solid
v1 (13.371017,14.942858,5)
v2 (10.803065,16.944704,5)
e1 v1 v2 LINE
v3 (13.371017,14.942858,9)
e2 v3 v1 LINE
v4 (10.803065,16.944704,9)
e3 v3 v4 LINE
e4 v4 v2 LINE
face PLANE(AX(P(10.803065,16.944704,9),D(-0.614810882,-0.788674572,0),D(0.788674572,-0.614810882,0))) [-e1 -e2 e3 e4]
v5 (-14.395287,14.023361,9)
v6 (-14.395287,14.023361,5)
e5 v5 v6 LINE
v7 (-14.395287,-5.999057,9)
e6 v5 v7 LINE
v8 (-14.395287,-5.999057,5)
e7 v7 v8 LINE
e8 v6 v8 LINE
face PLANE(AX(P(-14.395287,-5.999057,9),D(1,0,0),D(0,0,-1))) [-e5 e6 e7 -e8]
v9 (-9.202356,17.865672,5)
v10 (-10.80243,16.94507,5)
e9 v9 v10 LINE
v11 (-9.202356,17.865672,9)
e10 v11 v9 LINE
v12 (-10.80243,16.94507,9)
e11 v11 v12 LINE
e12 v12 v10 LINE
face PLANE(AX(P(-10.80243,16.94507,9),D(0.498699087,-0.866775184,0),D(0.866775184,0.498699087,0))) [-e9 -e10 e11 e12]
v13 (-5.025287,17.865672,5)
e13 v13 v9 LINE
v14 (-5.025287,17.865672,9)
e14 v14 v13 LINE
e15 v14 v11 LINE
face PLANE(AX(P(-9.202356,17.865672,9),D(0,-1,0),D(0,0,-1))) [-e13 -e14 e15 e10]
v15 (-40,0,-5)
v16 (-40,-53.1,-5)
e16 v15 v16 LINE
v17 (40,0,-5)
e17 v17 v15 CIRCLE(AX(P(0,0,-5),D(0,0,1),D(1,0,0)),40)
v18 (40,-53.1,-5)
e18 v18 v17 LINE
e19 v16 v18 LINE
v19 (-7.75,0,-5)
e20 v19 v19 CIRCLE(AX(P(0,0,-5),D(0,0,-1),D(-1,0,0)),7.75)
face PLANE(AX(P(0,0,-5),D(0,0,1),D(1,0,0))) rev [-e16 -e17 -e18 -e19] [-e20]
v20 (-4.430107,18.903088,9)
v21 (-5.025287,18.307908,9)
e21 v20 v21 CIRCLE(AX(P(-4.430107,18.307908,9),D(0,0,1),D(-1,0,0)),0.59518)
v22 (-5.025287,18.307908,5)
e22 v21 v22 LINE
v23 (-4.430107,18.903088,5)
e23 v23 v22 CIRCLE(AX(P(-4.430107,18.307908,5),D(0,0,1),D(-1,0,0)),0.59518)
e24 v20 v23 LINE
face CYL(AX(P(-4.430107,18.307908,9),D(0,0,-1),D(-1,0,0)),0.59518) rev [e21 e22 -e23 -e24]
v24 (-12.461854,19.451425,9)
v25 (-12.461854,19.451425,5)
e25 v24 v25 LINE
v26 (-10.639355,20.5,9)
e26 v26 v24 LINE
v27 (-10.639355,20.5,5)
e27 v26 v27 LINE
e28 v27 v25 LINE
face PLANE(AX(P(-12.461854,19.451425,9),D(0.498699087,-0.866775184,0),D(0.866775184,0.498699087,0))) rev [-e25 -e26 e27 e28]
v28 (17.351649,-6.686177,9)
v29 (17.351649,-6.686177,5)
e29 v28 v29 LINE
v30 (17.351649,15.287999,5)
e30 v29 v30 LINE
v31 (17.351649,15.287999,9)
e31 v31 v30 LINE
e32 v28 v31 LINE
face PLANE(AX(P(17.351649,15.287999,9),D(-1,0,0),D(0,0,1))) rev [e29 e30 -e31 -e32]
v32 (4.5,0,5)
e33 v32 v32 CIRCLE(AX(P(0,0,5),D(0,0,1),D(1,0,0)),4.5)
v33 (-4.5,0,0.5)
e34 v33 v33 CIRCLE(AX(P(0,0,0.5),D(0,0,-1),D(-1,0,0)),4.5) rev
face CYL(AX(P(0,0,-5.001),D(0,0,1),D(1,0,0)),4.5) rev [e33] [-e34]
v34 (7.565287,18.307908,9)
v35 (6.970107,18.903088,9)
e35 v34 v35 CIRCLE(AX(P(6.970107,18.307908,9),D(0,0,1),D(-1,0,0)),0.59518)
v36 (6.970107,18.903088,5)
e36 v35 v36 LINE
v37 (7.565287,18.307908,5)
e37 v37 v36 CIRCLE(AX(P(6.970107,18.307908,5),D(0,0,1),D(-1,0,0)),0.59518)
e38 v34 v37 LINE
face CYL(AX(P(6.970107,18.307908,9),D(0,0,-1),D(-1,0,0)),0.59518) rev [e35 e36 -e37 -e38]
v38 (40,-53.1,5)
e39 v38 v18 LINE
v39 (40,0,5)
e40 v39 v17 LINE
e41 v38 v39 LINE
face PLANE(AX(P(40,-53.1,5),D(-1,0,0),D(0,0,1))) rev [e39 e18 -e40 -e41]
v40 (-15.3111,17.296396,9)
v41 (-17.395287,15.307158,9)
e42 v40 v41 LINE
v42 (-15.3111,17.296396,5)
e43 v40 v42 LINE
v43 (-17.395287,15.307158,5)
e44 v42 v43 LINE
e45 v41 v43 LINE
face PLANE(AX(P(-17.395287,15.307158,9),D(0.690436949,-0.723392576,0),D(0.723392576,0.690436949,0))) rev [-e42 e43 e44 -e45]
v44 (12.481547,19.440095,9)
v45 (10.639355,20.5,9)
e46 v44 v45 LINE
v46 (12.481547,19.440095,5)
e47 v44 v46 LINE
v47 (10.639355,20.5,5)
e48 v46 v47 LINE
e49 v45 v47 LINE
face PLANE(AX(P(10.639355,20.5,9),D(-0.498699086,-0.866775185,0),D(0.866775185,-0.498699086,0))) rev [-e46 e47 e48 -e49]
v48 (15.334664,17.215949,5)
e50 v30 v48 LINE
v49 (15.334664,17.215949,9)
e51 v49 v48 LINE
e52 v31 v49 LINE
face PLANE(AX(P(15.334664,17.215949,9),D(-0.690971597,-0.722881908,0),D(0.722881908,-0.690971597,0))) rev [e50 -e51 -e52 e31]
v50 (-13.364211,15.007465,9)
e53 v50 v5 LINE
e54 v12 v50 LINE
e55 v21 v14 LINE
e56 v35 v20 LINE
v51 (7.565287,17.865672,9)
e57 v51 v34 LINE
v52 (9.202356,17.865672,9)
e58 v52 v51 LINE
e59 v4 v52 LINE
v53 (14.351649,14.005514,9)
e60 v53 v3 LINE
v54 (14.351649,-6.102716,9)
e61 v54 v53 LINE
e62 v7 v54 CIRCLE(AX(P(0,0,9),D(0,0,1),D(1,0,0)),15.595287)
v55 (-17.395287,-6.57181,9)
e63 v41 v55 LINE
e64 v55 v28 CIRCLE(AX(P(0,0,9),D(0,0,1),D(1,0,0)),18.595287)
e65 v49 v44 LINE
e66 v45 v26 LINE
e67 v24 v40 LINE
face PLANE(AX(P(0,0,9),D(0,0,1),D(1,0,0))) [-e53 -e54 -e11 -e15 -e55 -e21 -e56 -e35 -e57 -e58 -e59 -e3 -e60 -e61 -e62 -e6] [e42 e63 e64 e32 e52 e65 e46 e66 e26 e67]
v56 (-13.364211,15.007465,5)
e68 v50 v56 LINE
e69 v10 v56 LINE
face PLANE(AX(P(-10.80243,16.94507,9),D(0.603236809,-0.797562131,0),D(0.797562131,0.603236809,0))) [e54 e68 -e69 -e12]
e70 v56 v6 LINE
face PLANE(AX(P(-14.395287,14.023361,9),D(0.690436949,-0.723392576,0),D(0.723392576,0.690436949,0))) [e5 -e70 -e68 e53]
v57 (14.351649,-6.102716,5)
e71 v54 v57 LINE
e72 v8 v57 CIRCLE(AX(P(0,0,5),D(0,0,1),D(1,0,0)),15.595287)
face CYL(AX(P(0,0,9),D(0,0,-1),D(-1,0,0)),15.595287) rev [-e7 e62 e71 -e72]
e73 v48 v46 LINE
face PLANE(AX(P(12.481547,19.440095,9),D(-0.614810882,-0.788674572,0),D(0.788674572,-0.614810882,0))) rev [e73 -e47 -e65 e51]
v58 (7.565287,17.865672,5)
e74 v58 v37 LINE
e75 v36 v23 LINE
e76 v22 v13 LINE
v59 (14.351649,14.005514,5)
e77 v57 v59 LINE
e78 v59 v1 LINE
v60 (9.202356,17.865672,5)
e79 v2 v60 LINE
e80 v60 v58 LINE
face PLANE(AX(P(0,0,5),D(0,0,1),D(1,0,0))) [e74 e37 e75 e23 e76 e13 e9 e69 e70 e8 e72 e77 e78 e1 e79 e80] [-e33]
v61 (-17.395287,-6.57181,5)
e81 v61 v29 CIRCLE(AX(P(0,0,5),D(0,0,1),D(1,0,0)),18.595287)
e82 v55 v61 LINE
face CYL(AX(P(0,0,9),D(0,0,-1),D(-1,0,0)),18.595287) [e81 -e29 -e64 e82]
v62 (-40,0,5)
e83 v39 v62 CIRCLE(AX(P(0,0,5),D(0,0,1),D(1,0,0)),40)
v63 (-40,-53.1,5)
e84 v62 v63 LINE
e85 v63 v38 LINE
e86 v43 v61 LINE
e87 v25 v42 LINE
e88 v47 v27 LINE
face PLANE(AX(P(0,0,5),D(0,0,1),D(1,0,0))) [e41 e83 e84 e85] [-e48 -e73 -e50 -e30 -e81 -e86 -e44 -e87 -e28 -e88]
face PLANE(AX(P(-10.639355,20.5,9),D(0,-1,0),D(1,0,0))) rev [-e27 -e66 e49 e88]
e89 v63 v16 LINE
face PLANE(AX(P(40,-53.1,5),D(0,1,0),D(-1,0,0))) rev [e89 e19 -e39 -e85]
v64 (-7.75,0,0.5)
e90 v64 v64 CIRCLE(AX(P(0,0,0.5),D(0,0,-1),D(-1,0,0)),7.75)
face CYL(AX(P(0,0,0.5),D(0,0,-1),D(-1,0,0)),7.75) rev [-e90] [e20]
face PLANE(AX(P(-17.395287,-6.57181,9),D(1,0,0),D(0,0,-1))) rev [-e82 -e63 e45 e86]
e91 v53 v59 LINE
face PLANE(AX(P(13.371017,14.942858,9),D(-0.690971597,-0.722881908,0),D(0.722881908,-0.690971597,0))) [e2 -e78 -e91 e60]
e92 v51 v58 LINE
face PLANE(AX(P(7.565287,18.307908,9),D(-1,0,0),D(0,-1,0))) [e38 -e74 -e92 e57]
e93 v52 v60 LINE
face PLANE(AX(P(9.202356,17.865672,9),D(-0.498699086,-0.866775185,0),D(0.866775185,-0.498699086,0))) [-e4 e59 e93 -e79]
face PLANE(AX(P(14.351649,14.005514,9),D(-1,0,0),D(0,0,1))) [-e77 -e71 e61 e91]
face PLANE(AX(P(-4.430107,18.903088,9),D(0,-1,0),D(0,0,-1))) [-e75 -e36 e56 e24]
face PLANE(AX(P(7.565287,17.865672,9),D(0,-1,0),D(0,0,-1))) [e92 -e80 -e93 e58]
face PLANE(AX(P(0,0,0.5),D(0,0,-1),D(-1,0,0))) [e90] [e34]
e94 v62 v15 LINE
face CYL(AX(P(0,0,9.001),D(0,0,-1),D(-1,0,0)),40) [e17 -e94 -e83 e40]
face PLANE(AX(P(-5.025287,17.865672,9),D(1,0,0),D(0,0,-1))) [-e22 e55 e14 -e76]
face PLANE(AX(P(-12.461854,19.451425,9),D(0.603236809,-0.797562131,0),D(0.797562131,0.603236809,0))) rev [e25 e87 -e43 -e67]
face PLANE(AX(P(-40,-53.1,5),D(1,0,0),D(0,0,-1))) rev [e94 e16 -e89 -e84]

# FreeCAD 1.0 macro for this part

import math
import FreeCAD as App
import Part
import Sketcher
from FreeCAD import Vector
Q = App.Units.Quantity


def add_polygon(sketch, points):
    """Adds a closed chain of lines whose ends are joined by coincident constraints."""
    first, n = sketch.GeometryCount, len(points)
    for a, b in zip(points, points[1:] + points[:1]):
        sketch.addGeometry(Part.LineSegment(App.Vector(*a, 0), App.Vector(*b, 0)), False)
    for i in range(n):
        sketch.addConstraint(Sketcher.Constraint("Coincident", first + i, 2, first + (i + 1) % n, 1))

doc = App.newDocument("Part")
body = doc.addObject("PartDesign::Body", "Body")

# Sketch on XY plane
sketch1 = body.newObject("Sketcher::SketchObject", "Sketch")
sketch1.AttachmentSupport = (doc.getObject("XY_Plane"), [""])
sketch1.MapMode = "FlatFace"
add_polygon(sketch1, [(-40, 53), (-40, -53), (40, -53), (40, 53)])  # lines 0-3
sketch1.addConstraint([
    Sketcher.Constraint("Vertical", 0),
    Sketcher.Constraint("Horizontal", 1),
    Sketcher.Constraint("Vertical", 2),
    Sketcher.Constraint("Horizontal", 3),
    Sketcher.Constraint("Symmetric", 0, 2, 2, 2, -1, 1),
    Sketcher.Constraint("DistanceX", 1, 1, 1, 2, Q("80 mm")),
    Sketcher.Constraint("DistanceY", 0, 2, 0, 1, Q("106.2 mm")),
])
pad1 = body.newObject("PartDesign::Pad", "Pad")
pad1.Profile = sketch1
pad1.Length = 10
pad1.Midplane = True

# Sketch on XY plane
sketch2 = body.newObject("Sketcher::SketchObject", "Sketch001")
sketch2.AttachmentSupport = (doc.getObject("XY_Plane"), [""])
sketch2.MapMode = "FlatFace"
sketch2.AttachmentOffset = App.Placement(Vector(0, 0, 5), App.Rotation())
sketch2.addGeometry([
    Part.LineSegment(Vector(-17.4, 15.31, 0), Vector(-17.4, -6.57, 0)),  # 0
    Part.ArcOfCircle(Part.Circle(Vector(0, 0, 0), Vector(0, 0, 1), 18.6), math.radians(-159), math.radians(-21)),  # 1
    Part.LineSegment(Vector(17.35, -6.69, 0), Vector(17.35, 15.29, 0)),  # 2
    Part.LineSegment(Vector(17.35, 15.29, 0), Vector(15.33, 17.22, 0)),  # 3
    Part.LineSegment(Vector(15.33, 17.22, 0), Vector(12.48, 19.44, 0)),  # 4
    Part.LineSegment(Vector(12.48, 19.44, 0), Vector(10.64, 20.5, 0)),  # 5
    Part.LineSegment(Vector(10.64, 20.5, 0), Vector(-10.64, 20.5, 0)),  # 6
    Part.LineSegment(Vector(-10.64, 20.5, 0), Vector(-12.46, 19.45, 0)),  # 7
    Part.LineSegment(Vector(-12.46, 19.45, 0), Vector(-15.31, 17.3, 0)),  # 8
    Part.LineSegment(Vector(-15.31, 17.3, 0), Vector(-17.4, 15.31, 0)),  # 9
    Part.LineSegment(Vector(-14.4, -6, 0), Vector(-14.4, 14.02, 0)),  # 10
    Part.LineSegment(Vector(-14.4, 14.02, 0), Vector(-13.36, 15.01, 0)),  # 11
    Part.LineSegment(Vector(-13.36, 15.01, 0), Vector(-10.8, 16.95, 0)),  # 12
    Part.LineSegment(Vector(-10.8, 16.95, 0), Vector(-9.2, 17.87, 0)),  # 13
    Part.LineSegment(Vector(-9.2, 17.87, 0), Vector(-5.03, 17.87, 0)),  # 14
    Part.LineSegment(Vector(-5.03, 17.87, 0), Vector(-5.03, 18.31, 0)),  # 15
    Part.ArcOfCircle(Part.Circle(Vector(-4.43, 18.31, 0), Vector(0, 0, 1), 0.6), math.radians(90), math.radians(180)),  # 16
    Part.LineSegment(Vector(-4.43, 18.9, 0), Vector(6.97, 18.9, 0)),  # 17
    Part.ArcOfCircle(Part.Circle(Vector(6.97, 18.31, 0), Vector(0, 0, 1), 0.6), math.radians(0), math.radians(90)),  # 18
    Part.LineSegment(Vector(7.57, 18.31, 0), Vector(7.57, 17.87, 0)),  # 19
    Part.LineSegment(Vector(7.57, 17.87, 0), Vector(9.2, 17.87, 0)),  # 20
    Part.LineSegment(Vector(9.2, 17.87, 0), Vector(10.8, 16.94, 0)),  # 21
    Part.LineSegment(Vector(10.8, 16.94, 0), Vector(13.37, 14.94, 0)),  # 22
    Part.LineSegment(Vector(13.37, 14.94, 0), Vector(14.35, 14.01, 0)),  # 23
    Part.LineSegment(Vector(14.35, 14.01, 0), Vector(14.35, -6.1, 0)),  # 24
    Part.ArcOfCircle(Part.Circle(Vector(0, 0, 0), Vector(0, 0, 1), 15.6), math.radians(-157), math.radians(-23)),  # 25
], False)
sketch2.addConstraint([
    Sketcher.Constraint("Coincident", 0, 2, 1, 1),
    Sketcher.Constraint("Coincident", 1, 2, 2, 1),
    Sketcher.Constraint("Coincident", 2, 2, 3, 1),
    Sketcher.Constraint("Coincident", 3, 2, 4, 1),
    Sketcher.Constraint("Coincident", 4, 2, 5, 1),
    Sketcher.Constraint("Coincident", 5, 2, 6, 1),
    Sketcher.Constraint("Coincident", 6, 2, 7, 1),
    Sketcher.Constraint("Coincident", 7, 2, 8, 1),
    Sketcher.Constraint("Coincident", 8, 2, 9, 1),
    Sketcher.Constraint("Coincident", 9, 2, 0, 1),
    Sketcher.Constraint("Coincident", 10, 2, 11, 1),
    Sketcher.Constraint("Coincident", 11, 2, 12, 1),
    Sketcher.Constraint("Coincident", 12, 2, 13, 1),
    Sketcher.Constraint("Coincident", 13, 2, 14, 1),
    Sketcher.Constraint("Coincident", 14, 2, 15, 1),
    Sketcher.Constraint("Tangent", 15, 2, 16, 2),
    Sketcher.Constraint("Tangent", 16, 1, 17, 1),
    Sketcher.Constraint("Tangent", 17, 2, 18, 2),
    Sketcher.Constraint("Tangent", 18, 1, 19, 1),
    Sketcher.Constraint("Coincident", 19, 2, 20, 1),
    Sketcher.Constraint("Coincident", 20, 2, 21, 1),
    Sketcher.Constraint("Coincident", 21, 2, 22, 1),
    Sketcher.Constraint("Coincident", 22, 2, 23, 1),
    Sketcher.Constraint("Coincident", 23, 2, 24, 1),
    Sketcher.Constraint("Coincident", 24, 2, 25, 2),
    Sketcher.Constraint("Coincident", 25, 1, 10, 1),
    Sketcher.Constraint("Vertical", 0),
    Sketcher.Constraint("Vertical", 2),
    Sketcher.Constraint("Horizontal", 6),
    Sketcher.Constraint("Vertical", 10),
    Sketcher.Constraint("Horizontal", 14),
    Sketcher.Constraint("Vertical", 15),
    Sketcher.Constraint("Horizontal", 17),
    Sketcher.Constraint("Vertical", 19),
    Sketcher.Constraint("Horizontal", 20),
    Sketcher.Constraint("Vertical", 24),
    Sketcher.Constraint("Coincident", 1, 3, -1, 1),
    Sketcher.Constraint("Coincident", 25, 3, -1, 1),
    Sketcher.Constraint("Equal", 16, 18),
    Sketcher.Constraint("Symmetric", 13, 2, 20, 2, -2),
    Sketcher.Constraint("Parallel", 9, 11),
    Sketcher.Constraint("Parallel", 8, 12),
    Sketcher.Constraint("Parallel", 7, 13),
    Sketcher.Constraint("Parallel", 5, 21),
    Sketcher.Constraint("Parallel", 4, 22),
    Sketcher.Constraint("Parallel", 3, 23),
    Sketcher.Constraint("DistanceX", 9, 2, 10, 2, Q("3 mm")),
    Sketcher.Constraint("DistanceX", 23, 2, 2, 2, Q("3 mm")),
    Sketcher.Constraint("DistanceY", -1, 1, 5, 2, Q("20.5 mm")),
    Sketcher.Constraint("Radius", 16, Q("0.59518 mm")),
    Sketcher.Constraint("DistanceY", -1, 1, 2, 2, Q("15.287999 mm")),
    Sketcher.Constraint("Radius", 1, Q("18.595287 mm")),
    Sketcher.Constraint("Radius", 25, Q("15.595287 mm")),
    Sketcher.Constraint("DistanceX", 6, 2, 13, 2, Q("1.436999 mm")),
    Sketcher.Constraint("DistanceX", 20, 2, 5, 2, Q("1.436999 mm")),
    Sketcher.Constraint("Distance", 3, Q("2.790201 mm")),
    Sketcher.Constraint("DistanceX", 6, 2, 6, 1, Q("21.27871 mm")),
    Sketcher.Constraint("DistanceX", 14, 1, 14, 2, Q("4.177069 mm")),
    Sketcher.Constraint("DistanceX", 20, 1, 20, 2, Q("1.637069 mm")),
    Sketcher.Constraint("DistanceY", 0, 2, 0, 1, Q("21.878968 mm")),
    Sketcher.Constraint("DistanceY", 10, 1, 10, 2, Q("20.022418 mm")),
    Sketcher.Constraint("DistanceY", 24, 2, 24, 1, Q("20.10823 mm")),
    Sketcher.Constraint("DistanceX", 8, 2, -1, 1, Q("15.3111 mm")),
    Sketcher.Constraint("DistanceX", 7, 2, 6, 2, Q("1.8225 mm")),
    Sketcher.Constraint("Distance", 4, Q("3.61761 mm")),
    Sketcher.Constraint("Distance", 5, Q("2.12534 mm")),
    Sketcher.Constraint("Distance", 7, Q("2.102621 mm")),
    Sketcher.Constraint("Distance", 9, Q("2.881129 mm")),
    Sketcher.Constraint("Distance", 21, Q("1.846741 mm")),
    Sketcher.Constraint("Distance", 23, Q("1.356559 mm")),
    Sketcher.Constraint("DistanceY", 2, 1, 2, 2, Q("21.974177 mm")),
    Sketcher.Constraint("DistanceY", 15, 1, 15, 2, Q("0.442236 mm")),
    Sketcher.Constraint("DistanceY", -1, 1, 16, 3, Q("18.307908 mm")),
    Sketcher.Constraint("DistanceY", 0, 2, -1, 1, Q("6.57181 mm")),
    Sketcher.Constraint("DistanceX", 11, 2, -1, 1, Q("13.364211 mm")),
])
pad2 = body.newObject("PartDesign::Pad", "Pad001")
pad2.Profile = sketch2
pad2.Length = 4

# Sketch on XY plane
sketch3 = body.newObject("Sketcher::SketchObject", "Sketch002")
sketch3.AttachmentSupport = (doc.getObject("XY_Plane"), [""])
sketch3.MapMode = "FlatFace"
sketch3.AttachmentOffset = App.Placement(Vector(0, 0, 5), App.Rotation())
sketch3.addGeometry(Part.Circle(Vector(0, 0, 0), Vector(0, 0, 1), 4.5), False)
sketch3.addConstraint([
    Sketcher.Constraint("Coincident", 0, 3, -1, 1),
    Sketcher.Constraint("Diameter", 0, Q("9 mm")),
])
pocket1 = body.newObject("PartDesign::Pocket", "Pocket")
pocket1.Profile = sketch3
pocket1.Type = "UpToFirst"

# Sketch on XY plane
sketch4 = body.newObject("Sketcher::SketchObject", "Sketch003")
sketch4.AttachmentSupport = (doc.getObject("XY_Plane"), [""])
sketch4.MapMode = "FlatFace"
sketch4.AttachmentOffset = App.Placement(Vector(0, 0, -5), App.Rotation())
sketch4.addGeometry(Part.Circle(Vector(0, 0, 0), Vector(0, 0, 1), 8), False)
sketch4.addConstraint([
    Sketcher.Constraint("Coincident", 0, 3, -1, 1),
    Sketcher.Constraint("Diameter", 0, Q("15.5 mm")),
])
pocket2 = body.newObject("PartDesign::Pocket", "Pocket001")
pocket2.Profile = sketch4
pocket2.Length = 5.5
pocket2.Reversed = True

# Sketch on XY plane
sketch5 = body.newObject("Sketcher::SketchObject", "Sketch004")
sketch5.AttachmentSupport = (doc.getObject("XY_Plane"), [""])
sketch5.MapMode = "FlatFace"
sketch5.AttachmentOffset = App.Placement(Vector(0, 0, -5), App.Rotation())
sketch5.addGeometry([
    Part.LineSegment(Vector(-40, 53, 0), Vector(-40, 0, 0)),
    Part.ArcOfCircle(Part.Circle(Vector(0, 0, 0), Vector(0, 0, 1), 40), math.radians(0), math.radians(180)),
    Part.LineSegment(Vector(40, 0, 0), Vector(40, 53, 0)),
    Part.LineSegment(Vector(40, 53, 0), Vector(-40, 53, 0)),
], False)
sketch5.addConstraint([
    Sketcher.Constraint("Tangent", 0, 2, 1, 2),
    Sketcher.Constraint("Tangent", 1, 1, 2, 1),
    Sketcher.Constraint("Coincident", 2, 2, 3, 1),
    Sketcher.Constraint("Coincident", 3, 2, 0, 1),
    Sketcher.Constraint("Vertical", 0),
    Sketcher.Constraint("Vertical", 2),
    Sketcher.Constraint("Horizontal", 3),
    Sketcher.Constraint("Coincident", 1, 3, -1, 1),
    Sketcher.Constraint("Radius", 1, Q("40 mm")),
    Sketcher.Constraint("DistanceY", 0, 2, 0, 1, Q("53.1 mm")),
])
pocket3 = body.newObject("PartDesign::Pocket", "Pocket002")
pocket3.Profile = sketch5
pocket3.Length = 10
pocket3.Reversed = True

doc.recompute()
